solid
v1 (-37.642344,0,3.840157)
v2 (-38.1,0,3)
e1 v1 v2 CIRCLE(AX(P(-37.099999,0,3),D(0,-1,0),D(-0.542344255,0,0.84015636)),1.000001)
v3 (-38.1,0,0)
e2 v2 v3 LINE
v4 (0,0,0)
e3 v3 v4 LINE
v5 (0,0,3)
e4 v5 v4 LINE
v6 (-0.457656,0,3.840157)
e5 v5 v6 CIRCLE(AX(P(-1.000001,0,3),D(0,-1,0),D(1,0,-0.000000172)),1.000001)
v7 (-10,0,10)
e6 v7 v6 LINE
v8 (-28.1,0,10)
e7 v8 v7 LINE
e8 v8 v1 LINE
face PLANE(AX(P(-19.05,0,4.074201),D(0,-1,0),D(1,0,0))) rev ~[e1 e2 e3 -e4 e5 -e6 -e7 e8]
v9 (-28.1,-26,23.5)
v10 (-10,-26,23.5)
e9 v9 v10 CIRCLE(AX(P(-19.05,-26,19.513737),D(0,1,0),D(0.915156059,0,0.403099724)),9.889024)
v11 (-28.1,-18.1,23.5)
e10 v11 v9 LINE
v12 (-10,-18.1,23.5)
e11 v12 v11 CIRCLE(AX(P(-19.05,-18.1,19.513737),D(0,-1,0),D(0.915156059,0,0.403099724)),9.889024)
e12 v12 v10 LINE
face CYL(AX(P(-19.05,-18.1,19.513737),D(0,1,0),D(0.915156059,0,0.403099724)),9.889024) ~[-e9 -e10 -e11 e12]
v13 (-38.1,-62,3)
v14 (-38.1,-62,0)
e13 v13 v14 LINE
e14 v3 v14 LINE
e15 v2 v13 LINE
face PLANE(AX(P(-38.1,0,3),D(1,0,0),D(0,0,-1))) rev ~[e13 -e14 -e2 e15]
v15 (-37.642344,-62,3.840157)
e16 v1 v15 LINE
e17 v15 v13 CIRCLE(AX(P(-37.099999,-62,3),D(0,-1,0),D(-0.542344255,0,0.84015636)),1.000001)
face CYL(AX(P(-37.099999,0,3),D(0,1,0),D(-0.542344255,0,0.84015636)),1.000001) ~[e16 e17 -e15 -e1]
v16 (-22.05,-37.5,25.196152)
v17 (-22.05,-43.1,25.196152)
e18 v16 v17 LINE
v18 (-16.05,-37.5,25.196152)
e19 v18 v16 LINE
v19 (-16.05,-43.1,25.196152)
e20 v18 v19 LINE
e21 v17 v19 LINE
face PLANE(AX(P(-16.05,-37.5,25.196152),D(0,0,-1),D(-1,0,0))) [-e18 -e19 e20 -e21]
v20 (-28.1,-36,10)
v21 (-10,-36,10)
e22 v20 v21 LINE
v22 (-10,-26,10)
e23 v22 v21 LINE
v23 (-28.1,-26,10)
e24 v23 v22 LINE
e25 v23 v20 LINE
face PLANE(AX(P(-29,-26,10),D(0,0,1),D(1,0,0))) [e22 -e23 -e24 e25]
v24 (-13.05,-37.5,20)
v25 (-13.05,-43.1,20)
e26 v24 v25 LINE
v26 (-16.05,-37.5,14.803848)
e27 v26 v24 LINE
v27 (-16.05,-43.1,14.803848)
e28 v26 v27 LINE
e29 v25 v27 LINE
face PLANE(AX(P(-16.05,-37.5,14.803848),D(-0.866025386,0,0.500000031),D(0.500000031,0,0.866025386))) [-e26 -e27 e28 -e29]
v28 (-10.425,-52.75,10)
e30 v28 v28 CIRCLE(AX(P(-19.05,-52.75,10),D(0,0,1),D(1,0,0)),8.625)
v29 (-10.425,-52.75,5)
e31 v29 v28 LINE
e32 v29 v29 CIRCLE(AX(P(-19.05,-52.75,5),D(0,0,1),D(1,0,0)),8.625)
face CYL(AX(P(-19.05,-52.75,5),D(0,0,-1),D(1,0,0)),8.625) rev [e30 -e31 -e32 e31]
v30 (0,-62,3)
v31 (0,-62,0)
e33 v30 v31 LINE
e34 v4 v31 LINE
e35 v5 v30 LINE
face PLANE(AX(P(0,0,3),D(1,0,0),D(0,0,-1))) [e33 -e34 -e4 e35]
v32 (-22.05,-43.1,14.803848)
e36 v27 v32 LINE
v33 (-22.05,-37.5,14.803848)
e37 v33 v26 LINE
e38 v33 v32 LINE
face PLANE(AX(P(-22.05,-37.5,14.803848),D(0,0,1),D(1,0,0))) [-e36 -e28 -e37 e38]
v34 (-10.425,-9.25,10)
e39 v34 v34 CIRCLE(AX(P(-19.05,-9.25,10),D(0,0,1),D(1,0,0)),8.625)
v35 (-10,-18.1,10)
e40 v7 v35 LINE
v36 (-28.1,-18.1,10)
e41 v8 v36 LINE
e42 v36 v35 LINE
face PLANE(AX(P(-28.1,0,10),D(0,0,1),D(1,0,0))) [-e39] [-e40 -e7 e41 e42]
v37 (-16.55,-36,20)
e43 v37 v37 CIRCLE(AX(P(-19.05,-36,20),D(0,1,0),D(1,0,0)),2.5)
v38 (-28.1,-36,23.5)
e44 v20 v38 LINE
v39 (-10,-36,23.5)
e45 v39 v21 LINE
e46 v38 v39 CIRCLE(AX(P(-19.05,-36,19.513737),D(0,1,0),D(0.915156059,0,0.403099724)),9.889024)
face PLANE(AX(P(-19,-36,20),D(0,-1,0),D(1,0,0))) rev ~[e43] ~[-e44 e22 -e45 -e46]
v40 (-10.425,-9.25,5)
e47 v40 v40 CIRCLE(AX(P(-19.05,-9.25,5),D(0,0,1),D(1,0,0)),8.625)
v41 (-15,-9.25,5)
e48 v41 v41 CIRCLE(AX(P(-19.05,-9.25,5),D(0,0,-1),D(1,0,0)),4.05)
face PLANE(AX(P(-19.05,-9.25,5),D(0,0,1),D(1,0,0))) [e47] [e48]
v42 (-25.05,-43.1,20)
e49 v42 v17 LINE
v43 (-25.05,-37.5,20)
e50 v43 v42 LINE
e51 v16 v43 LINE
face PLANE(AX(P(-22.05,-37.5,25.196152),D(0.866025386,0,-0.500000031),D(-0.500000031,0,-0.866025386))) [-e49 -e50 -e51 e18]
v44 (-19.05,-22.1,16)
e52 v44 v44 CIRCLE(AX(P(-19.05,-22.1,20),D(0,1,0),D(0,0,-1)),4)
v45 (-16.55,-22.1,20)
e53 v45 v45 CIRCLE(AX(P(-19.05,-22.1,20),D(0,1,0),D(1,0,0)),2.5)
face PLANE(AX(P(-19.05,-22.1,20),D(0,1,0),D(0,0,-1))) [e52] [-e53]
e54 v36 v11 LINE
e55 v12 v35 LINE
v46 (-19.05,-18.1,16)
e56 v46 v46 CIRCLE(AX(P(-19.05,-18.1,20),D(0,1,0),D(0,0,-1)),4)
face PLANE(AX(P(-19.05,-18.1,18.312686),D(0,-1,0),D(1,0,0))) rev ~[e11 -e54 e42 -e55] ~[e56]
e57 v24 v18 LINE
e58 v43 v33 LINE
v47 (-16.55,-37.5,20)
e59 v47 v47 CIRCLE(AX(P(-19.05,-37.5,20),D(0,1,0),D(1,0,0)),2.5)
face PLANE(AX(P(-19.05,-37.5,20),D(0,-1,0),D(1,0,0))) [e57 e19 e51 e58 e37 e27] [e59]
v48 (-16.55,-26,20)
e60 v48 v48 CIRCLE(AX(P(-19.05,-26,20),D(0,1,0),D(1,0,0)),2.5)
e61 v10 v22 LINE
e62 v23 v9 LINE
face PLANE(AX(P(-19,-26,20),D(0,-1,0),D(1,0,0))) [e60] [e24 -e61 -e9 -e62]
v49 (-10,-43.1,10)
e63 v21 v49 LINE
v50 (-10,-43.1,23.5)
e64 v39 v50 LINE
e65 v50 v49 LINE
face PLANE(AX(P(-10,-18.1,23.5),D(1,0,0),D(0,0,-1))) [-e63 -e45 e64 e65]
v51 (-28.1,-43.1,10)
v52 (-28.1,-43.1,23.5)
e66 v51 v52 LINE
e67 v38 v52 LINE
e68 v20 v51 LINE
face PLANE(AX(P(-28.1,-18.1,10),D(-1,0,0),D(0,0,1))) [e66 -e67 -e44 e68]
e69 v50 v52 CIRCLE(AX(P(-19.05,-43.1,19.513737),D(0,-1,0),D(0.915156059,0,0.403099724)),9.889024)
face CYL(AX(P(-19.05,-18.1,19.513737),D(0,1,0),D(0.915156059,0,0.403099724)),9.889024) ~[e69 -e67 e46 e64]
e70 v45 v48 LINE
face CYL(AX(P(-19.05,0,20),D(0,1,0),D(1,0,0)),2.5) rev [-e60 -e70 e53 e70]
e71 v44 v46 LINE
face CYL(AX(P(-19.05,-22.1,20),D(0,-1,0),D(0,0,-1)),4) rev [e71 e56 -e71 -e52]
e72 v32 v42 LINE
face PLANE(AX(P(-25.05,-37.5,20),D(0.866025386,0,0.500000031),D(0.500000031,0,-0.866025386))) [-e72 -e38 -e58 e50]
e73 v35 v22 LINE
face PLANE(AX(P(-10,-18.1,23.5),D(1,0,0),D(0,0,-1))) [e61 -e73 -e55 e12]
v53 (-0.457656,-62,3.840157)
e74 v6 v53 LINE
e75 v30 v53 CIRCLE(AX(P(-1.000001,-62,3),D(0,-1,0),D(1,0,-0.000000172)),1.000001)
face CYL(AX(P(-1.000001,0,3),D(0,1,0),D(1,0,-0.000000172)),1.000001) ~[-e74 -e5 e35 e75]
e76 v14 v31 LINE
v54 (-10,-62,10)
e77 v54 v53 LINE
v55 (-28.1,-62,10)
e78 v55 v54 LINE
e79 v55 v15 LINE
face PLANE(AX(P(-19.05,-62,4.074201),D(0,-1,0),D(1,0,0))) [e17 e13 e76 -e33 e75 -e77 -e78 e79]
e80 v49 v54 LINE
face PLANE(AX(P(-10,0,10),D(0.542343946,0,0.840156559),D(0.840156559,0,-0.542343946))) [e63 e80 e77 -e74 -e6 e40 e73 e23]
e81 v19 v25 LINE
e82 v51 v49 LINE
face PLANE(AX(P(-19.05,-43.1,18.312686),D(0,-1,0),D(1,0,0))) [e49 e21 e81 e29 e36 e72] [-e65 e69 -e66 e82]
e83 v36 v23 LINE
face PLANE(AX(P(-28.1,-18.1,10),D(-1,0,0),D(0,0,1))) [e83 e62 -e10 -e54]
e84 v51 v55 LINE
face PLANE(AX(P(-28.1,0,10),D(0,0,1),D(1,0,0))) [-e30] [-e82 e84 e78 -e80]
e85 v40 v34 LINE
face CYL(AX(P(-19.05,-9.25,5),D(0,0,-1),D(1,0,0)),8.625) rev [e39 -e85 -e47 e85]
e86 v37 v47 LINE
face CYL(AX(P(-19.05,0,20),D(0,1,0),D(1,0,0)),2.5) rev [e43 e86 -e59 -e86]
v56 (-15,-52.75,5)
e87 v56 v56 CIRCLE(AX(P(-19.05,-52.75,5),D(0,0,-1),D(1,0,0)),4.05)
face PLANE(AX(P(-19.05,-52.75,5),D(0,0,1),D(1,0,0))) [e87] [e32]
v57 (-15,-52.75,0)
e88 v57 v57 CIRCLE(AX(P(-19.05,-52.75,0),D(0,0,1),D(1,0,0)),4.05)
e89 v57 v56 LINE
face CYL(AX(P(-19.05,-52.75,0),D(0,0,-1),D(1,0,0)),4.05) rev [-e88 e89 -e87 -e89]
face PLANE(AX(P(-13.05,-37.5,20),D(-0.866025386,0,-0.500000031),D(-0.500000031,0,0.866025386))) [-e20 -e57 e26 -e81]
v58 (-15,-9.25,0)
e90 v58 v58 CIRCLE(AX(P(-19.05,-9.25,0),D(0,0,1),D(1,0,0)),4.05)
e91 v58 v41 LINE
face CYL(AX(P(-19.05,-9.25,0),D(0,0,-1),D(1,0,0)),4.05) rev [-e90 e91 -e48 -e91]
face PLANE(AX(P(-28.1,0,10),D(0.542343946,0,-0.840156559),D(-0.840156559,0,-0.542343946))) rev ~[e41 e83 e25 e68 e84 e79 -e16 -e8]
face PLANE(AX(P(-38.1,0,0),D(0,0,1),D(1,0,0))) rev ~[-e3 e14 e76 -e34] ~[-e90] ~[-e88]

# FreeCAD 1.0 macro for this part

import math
import FreeCAD as App
import Part
import Sketcher
Q = App.Units.Quantity


def add_polygon(sketch, points):
    """Adds a closed chain of lines whose ends are joined by coincident constraints."""
    first, n = sketch.GeometryCount, len(points)
    for a, b in zip(points, points[1:] + points[:1]):
        sketch.addGeometry(Part.LineSegment(App.Vector(*a, 0), App.Vector(*b, 0)), False)
    for i in range(n):
        sketch.addConstraint(Sketcher.Constraint("Coincident", first + i, 2, first + (i + 1) % n, 1))

doc = App.newDocument("Part")
params = doc.addObject("Spreadsheet::Sheet", "Params")
for row, (alias, value) in enumerate([
    ("sketch1_radius", "1.000001 mm"),
    ("sketch1_height", "3 mm"),
    ("sketch1_width", "38.1 mm"),
    ("sketch1_width2", "18.1 mm"),
    ("pad1_length", "62 mm"),
    ("sketch2_diameter", "8.1 mm"),
    ("sketch3_diameter", "17.25 mm"),
    ("pocket2_length", "5 mm"),
    ("sketch4_width", "18.1 mm"),
    ("sketch4_height", "13.5 mm"),
    ("pad2_length", "25 mm"),
    ("sketch5_width", "20 mm"),
    ("pocket3_length", "10 mm"),
    ("sketch6_diameter", "5 mm"),
    ("sketch7_diameter", "8 mm"),
    ("pocket5_length", "4 mm"),
    ("sketch8_width", "6 mm"),
    ("sketch8_length", "6 mm"),
    ("pocket6_length", "6 mm"),
], start=1):
    params.set(f"A{row}", alias)
    params.set(f"B{row}", "=" + value)
    params.setAlias(f"B{row}", alias)

body = doc.addObject("PartDesign::Body", "Body")

sketch1 = body.newObject("Sketcher::SketchObject", "Sketch")
sketch1.AttachmentSupport = (doc.getObject("XZ_Plane"), [""])
sketch1.MapMode = "FlatFace"
sketch1.addGeometry(Part.LineSegment(App.Vector(-38.1, 3, 0), App.Vector(-38.1, 0, 0)), False)
sketch1.addGeometry(Part.LineSegment(App.Vector(-38.1, 0, 0), App.Vector(0, 0, 0)), False)
sketch1.addGeometry(Part.LineSegment(App.Vector(0, 0, 0), App.Vector(0, 3, 0)), False)
sketch1.addGeometry(Part.ArcOfCircle(Part.Circle(App.Vector(-1, 3, 0), App.Vector(0, 0, 1), 1), math.radians(0), math.radians(57)), False)
sketch1.addGeometry(Part.LineSegment(App.Vector(-0.5, 3.8, 0), App.Vector(-10, 10, 0)), False)
sketch1.addGeometry(Part.LineSegment(App.Vector(-10, 10, 0), App.Vector(-28.1, 10, 0)), False)
sketch1.addGeometry(Part.LineSegment(App.Vector(-28.1, 10, 0), App.Vector(-37.6, 3.8, 0)), False)
sketch1.addGeometry(Part.ArcOfCircle(Part.Circle(App.Vector(-37.1, 3, 0), App.Vector(0, 0, 1), 1), math.radians(123), math.radians(180)), False)
sketch1.addConstraint(Sketcher.Constraint("Coincident", 0, 2, 1, 1))
sketch1.addConstraint(Sketcher.Constraint("Coincident", 1, 2, 2, 1))
sketch1.addConstraint(Sketcher.Constraint("Tangent", 2, 2, 3, 1))
sketch1.addConstraint(Sketcher.Constraint("Tangent", 3, 2, 4, 1))
sketch1.addConstraint(Sketcher.Constraint("Coincident", 4, 2, 5, 1))
sketch1.addConstraint(Sketcher.Constraint("Coincident", 5, 2, 6, 1))
sketch1.addConstraint(Sketcher.Constraint("Tangent", 6, 2, 7, 1))
sketch1.addConstraint(Sketcher.Constraint("Tangent", 7, 2, 0, 1))
sketch1.addConstraint(Sketcher.Constraint("Vertical", 0))
sketch1.addConstraint(Sketcher.Constraint("Horizontal", 1))
sketch1.addConstraint(Sketcher.Constraint("Vertical", 2))
sketch1.addConstraint(Sketcher.Constraint("Horizontal", 5))
sketch1.addConstraint(Sketcher.Constraint("Coincident", 1, 2, -1, 1))
sketch1.addConstraint(Sketcher.Constraint("Equal", 3, 7))
sketch1.addConstraint(Sketcher.Constraint("Horizontal", 3, 3, 7, 3))
sketch1.addConstraint(Sketcher.Constraint("Horizontal", 3, 2, 6, 2))
sketch1.addConstraint(Sketcher.Constraint("Radius", 3, Q("1.000001 mm")))
sketch1.addConstraint(Sketcher.Constraint("DistanceY", 0, 2, 0, 1, Q("3 mm")))
sketch1.addConstraint(Sketcher.Constraint("DistanceX", 1, 1, 1, 2, Q("38.1 mm")))
sketch1.addConstraint(Sketcher.Constraint("DistanceX", 5, 2, 5, 1, Q("18.1 mm")))
sketch1.addConstraint(Sketcher.Constraint("DistanceY", -1, 1, 4, 2, Q("10 mm")))
sketch1.setExpression("Constraints[16]", "Params.sketch1_radius")
sketch1.setExpression("Constraints[17]", "Params.sketch1_height")
sketch1.setExpression("Constraints[18]", "Params.sketch1_width")
sketch1.setExpression("Constraints[19]", "Params.sketch1_width2")
pad1 = body.newObject("PartDesign::Pad", "Pad")
pad1.Profile = sketch1
pad1.setExpression("Length", "Params.pad1_length")

sketch2 = body.newObject("Sketcher::SketchObject", "Sketch001")
sketch2.AttachmentSupport = (doc.getObject("XY_Plane"), [""])
sketch2.MapMode = "FlatFace"
sketch2.addGeometry(Part.Circle(App.Vector(-19.1, -9.2, 0), App.Vector(0, 0, 1), 4), False)
sketch2.addGeometry(Part.Circle(App.Vector(-19.1, -52.8, 0), App.Vector(0, 0, 1), 4), False)
sketch2.addConstraint(Sketcher.Constraint("Equal", 0, 1))
sketch2.addConstraint(Sketcher.Constraint("Vertical", 0, 3, 1, 3))
sketch2.addConstraint(Sketcher.Constraint("Diameter", 0, Q("8.1 mm")))
sketch2.addConstraint(Sketcher.Constraint("DistanceY", 1, 3, 0, 3, Q("43.5 mm")))
sketch2.addConstraint(Sketcher.Constraint("DistanceX", 0, 3, -1, 1, Q("19.05 mm")))
sketch2.addConstraint(Sketcher.Constraint("DistanceY", 0, 3, -1, 1, Q("9.25 mm")))
sketch2.setExpression("Constraints[2]", "Params.sketch2_diameter")
pocket1 = body.newObject("PartDesign::Pocket", "Pocket")
pocket1.Profile = sketch2
pocket1.Type = "ThroughAll"
pocket1.Midplane = True

sketch3 = body.newObject("Sketcher::SketchObject", "Sketch002")
sketch3.AttachmentSupport = (doc.getObject("XY_Plane"), [""])
sketch3.MapMode = "FlatFace"
sketch3.AttachmentOffset = App.Placement(App.Vector(0, 0, 5), App.Rotation())
sketch3.addGeometry(Part.Circle(App.Vector(-19, -9, 0), App.Vector(0, 0, 1), 9), False)
sketch3.addGeometry(Part.Circle(App.Vector(-19, -53, 0), App.Vector(0, 0, 1), 9), False)
sketch3.addConstraint(Sketcher.Constraint("Equal", 0, 1))
sketch3.addConstraint(Sketcher.Constraint("Vertical", 0, 3, 1, 3))
sketch3.addConstraint(Sketcher.Constraint("Diameter", 0, Q("17.25 mm")))
sketch3.addConstraint(Sketcher.Constraint("DistanceY", 1, 3, 0, 3, Q("43.5 mm")))
sketch3.addConstraint(Sketcher.Constraint("DistanceX", 0, 3, -1, 1, Q("19.05 mm")))
sketch3.addConstraint(Sketcher.Constraint("DistanceY", 0, 3, -1, 1, Q("9.25 mm")))
sketch3.setExpression("Constraints[2]", "Params.sketch3_diameter")
pocket2 = body.newObject("PartDesign::Pocket", "Pocket001")
pocket2.Profile = sketch3
pocket2.setExpression("Length", "Params.pocket2_length")
pocket2.Reversed = True

sketch4 = body.newObject("Sketcher::SketchObject", "Sketch003")
sketch4.AttachmentSupport = (doc.getObject("XZ_Plane"), [""])
sketch4.MapMode = "FlatFace"
sketch4.AttachmentOffset = App.Placement(App.Vector(0, 0, 18.1), App.Rotation())
sketch4.addGeometry(Part.LineSegment(App.Vector(-28, 10, 0), App.Vector(-10, 10, 0)), False)
sketch4.addGeometry(Part.LineSegment(App.Vector(-10, 10, 0), App.Vector(-10, 24, 0)), False)
sketch4.addGeometry(Part.ArcOfCircle(Part.Circle(App.Vector(-19, 20, 0), App.Vector(0, 0, 1), 10), math.radians(24), math.radians(156)), False)
sketch4.addGeometry(Part.LineSegment(App.Vector(-28, 24, 0), App.Vector(-28, 10, 0)), False)
sketch4.addConstraint(Sketcher.Constraint("Coincident", 0, 2, 1, 1))
sketch4.addConstraint(Sketcher.Constraint("Coincident", 1, 2, 2, 1))
sketch4.addConstraint(Sketcher.Constraint("Coincident", 2, 2, 3, 1))
sketch4.addConstraint(Sketcher.Constraint("Coincident", 3, 2, 0, 1))
sketch4.addConstraint(Sketcher.Constraint("Horizontal", 0))
sketch4.addConstraint(Sketcher.Constraint("Vertical", 1))
sketch4.addConstraint(Sketcher.Constraint("Vertical", 3))
sketch4.addConstraint(Sketcher.Constraint("Horizontal", 1, 2, 2, 2))
sketch4.addConstraint(Sketcher.Constraint("DistanceX", 0, 1, 0, 2, Q("18.1 mm")))
sketch4.addConstraint(Sketcher.Constraint("DistanceY", 1, 1, 1, 2, Q("13.5 mm")))
sketch4.addConstraint(Sketcher.Constraint("DistanceX", 0, 2, -1, 1, Q("10 mm")))
sketch4.addConstraint(Sketcher.Constraint("DistanceY", -1, 1, 0, 2, Q("10 mm")))
sketch4.addConstraint(Sketcher.Constraint("Radius", 2, Q("9.889024 mm")))
sketch4.setExpression("Constraints[8]", "Params.sketch4_width")
sketch4.setExpression("Constraints[9]", "Params.sketch4_height")
pad2 = body.newObject("PartDesign::Pad", "Pad001")
pad2.Profile = sketch4
pad2.setExpression("Length", "Params.pad2_length")

sketch5 = body.newObject("Sketcher::SketchObject", "Sketch004")
sketch5.AttachmentSupport = (doc.getObject("XZ_Plane"), [""])
sketch5.MapMode = "FlatFace"
sketch5.AttachmentOffset = App.Placement(App.Vector(0, 0, 26), App.Rotation())
add_polygon(sketch5, [(-29, 30), (-29, 10), (-9, 10), (-9, 30)])
sketch5.addConstraint(Sketcher.Constraint("Vertical", 0))
sketch5.addConstraint(Sketcher.Constraint("Horizontal", 1))
sketch5.addConstraint(Sketcher.Constraint("Vertical", 2))
sketch5.addConstraint(Sketcher.Constraint("Horizontal", 3))
sketch5.addConstraint(Sketcher.Constraint("Equal", 3, 0))
sketch5.addConstraint(Sketcher.Constraint("DistanceX", 1, 1, 1, 2, Q("20 mm")))
sketch5.addConstraint(Sketcher.Constraint("DistanceX", 0, 2, -1, 1, Q("29 mm")))
sketch5.addConstraint(Sketcher.Constraint("DistanceY", -1, 1, 0, 2, Q("10 mm")))
sketch5.setExpression("Constraints[9]", "Params.sketch5_width")
pocket3 = body.newObject("PartDesign::Pocket", "Pocket002")
pocket3.Profile = sketch5
pocket3.setExpression("Length", "Params.pocket3_length")
pocket3.Reversed = True

sketch6 = body.newObject("Sketcher::SketchObject", "Sketch005")
sketch6.AttachmentSupport = (doc.getObject("XZ_Plane"), [""])
sketch6.MapMode = "FlatFace"
sketch6.addGeometry(Part.Circle(App.Vector(-19.1, 20, 0), App.Vector(0, 0, 1), 2.5), False)
sketch6.addConstraint(Sketcher.Constraint("Diameter", 0, Q("5 mm")))
sketch6.addConstraint(Sketcher.Constraint("DistanceY", -1, 1, 0, 3, Q("20 mm")))
sketch6.addConstraint(Sketcher.Constraint("DistanceX", 0, 3, -1, 1, Q("19.05 mm")))
sketch6.setExpression("Constraints[0]", "Params.sketch6_diameter")
pocket4 = body.newObject("PartDesign::Pocket", "Pocket003")
pocket4.Profile = sketch6
pocket4.Type = "ThroughAll"
pocket4.Reversed = True

sketch7 = body.newObject("Sketcher::SketchObject", "Sketch006")
sketch7.AttachmentSupport = (doc.getObject("XZ_Plane"), [""])
sketch7.MapMode = "FlatFace"
sketch7.AttachmentOffset = App.Placement(App.Vector(0, 0, 22.1), App.Rotation())
sketch7.addGeometry(Part.Circle(App.Vector(-19.1, 20, 0), App.Vector(0, 0, 1), 4), False)
sketch7.addConstraint(Sketcher.Constraint("Diameter", 0, Q("8 mm")))
sketch7.addConstraint(Sketcher.Constraint("DistanceY", -1, 1, 0, 3, Q("20 mm")))
sketch7.addConstraint(Sketcher.Constraint("DistanceX", 0, 3, -1, 1, Q("19.05 mm")))
sketch7.setExpression("Constraints[0]", "Params.sketch7_diameter")
pocket5 = body.newObject("PartDesign::Pocket", "Pocket004")
pocket5.Profile = sketch7
pocket5.setExpression("Length", "Params.pocket5_length")

sketch8 = body.newObject("Sketcher::SketchObject", "Sketch007")
sketch8.AttachmentSupport = (doc.getObject("XZ_Plane"), [""])
sketch8.MapMode = "FlatFace"
sketch8.AttachmentOffset = App.Placement(App.Vector(0, 0, 37.5), App.Rotation())
add_polygon(sketch8, [(-16, 25), (-22, 25), (-25, 20), (-22, 15), (-16, 15), (-13, 20)])
sketch8.addConstraint(Sketcher.Constraint("Horizontal", 0))
sketch8.addConstraint(Sketcher.Constraint("Horizontal", 3))
sketch8.addConstraint(Sketcher.Constraint("Parallel", 1, 4))
sketch8.addConstraint(Sketcher.Constraint("Parallel", 2, 5))
sketch8.addConstraint(Sketcher.Constraint("Horizontal", 1, 2, 4, 2))
sketch8.addConstraint(Sketcher.Constraint("Vertical", 0, 2, 2, 2))
sketch8.addConstraint(Sketcher.Constraint("Vertical", 3, 2, 5, 2))
sketch8.addConstraint(Sketcher.Constraint("DistanceX", 0, 2, 0, 1, Q("6 mm")))
sketch8.addConstraint(Sketcher.Constraint("Angle", 1, Q("-120.000002 deg")))
sketch8.addConstraint(Sketcher.Constraint("Distance", 1, Q("6 mm")))
sketch8.addConstraint(Sketcher.Constraint("DistanceY", -1, 1, 1, 2, Q("20 mm")))
sketch8.addConstraint(Sketcher.Constraint("DistanceX", 0, 2, -1, 1, Q("22.05 mm")))
sketch8.setExpression("Constraints[13]", "Params.sketch8_width")
sketch8.setExpression("Constraints[15]", "Params.sketch8_length")
pocket6 = body.newObject("PartDesign::Pocket", "Pocket005")
pocket6.Profile = sketch8
pocket6.setExpression("Length", "Params.pocket6_length")
pocket6.Reversed = True

doc.recompute()
